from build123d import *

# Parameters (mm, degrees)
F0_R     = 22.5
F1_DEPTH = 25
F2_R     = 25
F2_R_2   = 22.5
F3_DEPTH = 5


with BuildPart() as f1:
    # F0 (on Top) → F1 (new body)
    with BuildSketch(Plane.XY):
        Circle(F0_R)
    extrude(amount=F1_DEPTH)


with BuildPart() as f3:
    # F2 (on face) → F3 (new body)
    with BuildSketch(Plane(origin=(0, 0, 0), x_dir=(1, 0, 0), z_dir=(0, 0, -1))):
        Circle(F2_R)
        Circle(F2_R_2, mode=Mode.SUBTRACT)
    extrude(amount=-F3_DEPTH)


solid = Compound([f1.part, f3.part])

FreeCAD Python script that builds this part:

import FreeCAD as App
import Part
import Sketcher

V = App.Vector
Q = App.Units.Quantity

doc = App.newDocument("Part")
params = doc.addObject("Spreadsheet::Sheet", "Params")
for row, (alias, value) in enumerate([
    ("sketch1_diameter", "45 mm"),
    ("pad1_length", "25 mm"),
    ("sketch2_diameter", "50 mm"),
    ("sketch2_diameter2", "45 mm"),
    ("pad2_length", "5 mm"),
], start=1):
    params.set(f"A{row}", alias)
    params.set(f"B{row}", "=" + value)
    params.setAlias(f"B{row}", alias)

body = doc.addObject("PartDesign::Body", "Body")

# Sketch on XY plane
sketch1 = body.newObject("Sketcher::SketchObject", "Sketch")
sketch1.AttachmentSupport = (doc.getObject("XY_Plane"), [""])
sketch1.MapMode = "FlatFace"
sketch1.addGeometry(Part.Circle(V(0, 0, 0), V(0, 0, 1), 22.5), False)
sketch1.addConstraint([
    Sketcher.Constraint("Coincident", 0, 3, -1, 1),
    Sketcher.Constraint("Diameter", 0, Q("45 mm")),
])
sketch1.setExpression("Constraints[1]", "Params.sketch1_diameter")
pad1 = body.newObject("PartDesign::Pad", "Pad")
pad1.Profile = sketch1
pad1.setExpression("Length", "Params.pad1_length")
body2 = doc.addObject("PartDesign::Body", "Body001")

# Sketch on XY plane
sketch2 = body2.newObject("Sketcher::SketchObject", "Sketch001")
sketch2.AttachmentSupport = (doc.getObject("XY_Plane001"), [""])
sketch2.MapMode = "FlatFace"
sketch2.addGeometry([
    Part.Circle(V(0, 0, 0), V(0, 0, 1), 25),
    Part.Circle(V(0, 0, 0), V(0, 0, 1), 22.5),
], False)
sketch2.addConstraint([
    Sketcher.Constraint("Coincident", 0, 3, -1, 1),
    Sketcher.Constraint("Coincident", 1, 3, -1, 1),
    Sketcher.Constraint("Diameter", 0, Q("50 mm")),
    Sketcher.Constraint("Diameter", 1, Q("45 mm")),
])
sketch2.setExpression("Constraints[2]", "Params.sketch2_diameter")
sketch2.setExpression("Constraints[3]", "Params.sketch2_diameter2")
pad2 = body2.newObject("PartDesign::Pad", "Pad001")
pad2.Profile = sketch2
pad2.setExpression("Length", "Params.pad2_length")

doc.recompute()
